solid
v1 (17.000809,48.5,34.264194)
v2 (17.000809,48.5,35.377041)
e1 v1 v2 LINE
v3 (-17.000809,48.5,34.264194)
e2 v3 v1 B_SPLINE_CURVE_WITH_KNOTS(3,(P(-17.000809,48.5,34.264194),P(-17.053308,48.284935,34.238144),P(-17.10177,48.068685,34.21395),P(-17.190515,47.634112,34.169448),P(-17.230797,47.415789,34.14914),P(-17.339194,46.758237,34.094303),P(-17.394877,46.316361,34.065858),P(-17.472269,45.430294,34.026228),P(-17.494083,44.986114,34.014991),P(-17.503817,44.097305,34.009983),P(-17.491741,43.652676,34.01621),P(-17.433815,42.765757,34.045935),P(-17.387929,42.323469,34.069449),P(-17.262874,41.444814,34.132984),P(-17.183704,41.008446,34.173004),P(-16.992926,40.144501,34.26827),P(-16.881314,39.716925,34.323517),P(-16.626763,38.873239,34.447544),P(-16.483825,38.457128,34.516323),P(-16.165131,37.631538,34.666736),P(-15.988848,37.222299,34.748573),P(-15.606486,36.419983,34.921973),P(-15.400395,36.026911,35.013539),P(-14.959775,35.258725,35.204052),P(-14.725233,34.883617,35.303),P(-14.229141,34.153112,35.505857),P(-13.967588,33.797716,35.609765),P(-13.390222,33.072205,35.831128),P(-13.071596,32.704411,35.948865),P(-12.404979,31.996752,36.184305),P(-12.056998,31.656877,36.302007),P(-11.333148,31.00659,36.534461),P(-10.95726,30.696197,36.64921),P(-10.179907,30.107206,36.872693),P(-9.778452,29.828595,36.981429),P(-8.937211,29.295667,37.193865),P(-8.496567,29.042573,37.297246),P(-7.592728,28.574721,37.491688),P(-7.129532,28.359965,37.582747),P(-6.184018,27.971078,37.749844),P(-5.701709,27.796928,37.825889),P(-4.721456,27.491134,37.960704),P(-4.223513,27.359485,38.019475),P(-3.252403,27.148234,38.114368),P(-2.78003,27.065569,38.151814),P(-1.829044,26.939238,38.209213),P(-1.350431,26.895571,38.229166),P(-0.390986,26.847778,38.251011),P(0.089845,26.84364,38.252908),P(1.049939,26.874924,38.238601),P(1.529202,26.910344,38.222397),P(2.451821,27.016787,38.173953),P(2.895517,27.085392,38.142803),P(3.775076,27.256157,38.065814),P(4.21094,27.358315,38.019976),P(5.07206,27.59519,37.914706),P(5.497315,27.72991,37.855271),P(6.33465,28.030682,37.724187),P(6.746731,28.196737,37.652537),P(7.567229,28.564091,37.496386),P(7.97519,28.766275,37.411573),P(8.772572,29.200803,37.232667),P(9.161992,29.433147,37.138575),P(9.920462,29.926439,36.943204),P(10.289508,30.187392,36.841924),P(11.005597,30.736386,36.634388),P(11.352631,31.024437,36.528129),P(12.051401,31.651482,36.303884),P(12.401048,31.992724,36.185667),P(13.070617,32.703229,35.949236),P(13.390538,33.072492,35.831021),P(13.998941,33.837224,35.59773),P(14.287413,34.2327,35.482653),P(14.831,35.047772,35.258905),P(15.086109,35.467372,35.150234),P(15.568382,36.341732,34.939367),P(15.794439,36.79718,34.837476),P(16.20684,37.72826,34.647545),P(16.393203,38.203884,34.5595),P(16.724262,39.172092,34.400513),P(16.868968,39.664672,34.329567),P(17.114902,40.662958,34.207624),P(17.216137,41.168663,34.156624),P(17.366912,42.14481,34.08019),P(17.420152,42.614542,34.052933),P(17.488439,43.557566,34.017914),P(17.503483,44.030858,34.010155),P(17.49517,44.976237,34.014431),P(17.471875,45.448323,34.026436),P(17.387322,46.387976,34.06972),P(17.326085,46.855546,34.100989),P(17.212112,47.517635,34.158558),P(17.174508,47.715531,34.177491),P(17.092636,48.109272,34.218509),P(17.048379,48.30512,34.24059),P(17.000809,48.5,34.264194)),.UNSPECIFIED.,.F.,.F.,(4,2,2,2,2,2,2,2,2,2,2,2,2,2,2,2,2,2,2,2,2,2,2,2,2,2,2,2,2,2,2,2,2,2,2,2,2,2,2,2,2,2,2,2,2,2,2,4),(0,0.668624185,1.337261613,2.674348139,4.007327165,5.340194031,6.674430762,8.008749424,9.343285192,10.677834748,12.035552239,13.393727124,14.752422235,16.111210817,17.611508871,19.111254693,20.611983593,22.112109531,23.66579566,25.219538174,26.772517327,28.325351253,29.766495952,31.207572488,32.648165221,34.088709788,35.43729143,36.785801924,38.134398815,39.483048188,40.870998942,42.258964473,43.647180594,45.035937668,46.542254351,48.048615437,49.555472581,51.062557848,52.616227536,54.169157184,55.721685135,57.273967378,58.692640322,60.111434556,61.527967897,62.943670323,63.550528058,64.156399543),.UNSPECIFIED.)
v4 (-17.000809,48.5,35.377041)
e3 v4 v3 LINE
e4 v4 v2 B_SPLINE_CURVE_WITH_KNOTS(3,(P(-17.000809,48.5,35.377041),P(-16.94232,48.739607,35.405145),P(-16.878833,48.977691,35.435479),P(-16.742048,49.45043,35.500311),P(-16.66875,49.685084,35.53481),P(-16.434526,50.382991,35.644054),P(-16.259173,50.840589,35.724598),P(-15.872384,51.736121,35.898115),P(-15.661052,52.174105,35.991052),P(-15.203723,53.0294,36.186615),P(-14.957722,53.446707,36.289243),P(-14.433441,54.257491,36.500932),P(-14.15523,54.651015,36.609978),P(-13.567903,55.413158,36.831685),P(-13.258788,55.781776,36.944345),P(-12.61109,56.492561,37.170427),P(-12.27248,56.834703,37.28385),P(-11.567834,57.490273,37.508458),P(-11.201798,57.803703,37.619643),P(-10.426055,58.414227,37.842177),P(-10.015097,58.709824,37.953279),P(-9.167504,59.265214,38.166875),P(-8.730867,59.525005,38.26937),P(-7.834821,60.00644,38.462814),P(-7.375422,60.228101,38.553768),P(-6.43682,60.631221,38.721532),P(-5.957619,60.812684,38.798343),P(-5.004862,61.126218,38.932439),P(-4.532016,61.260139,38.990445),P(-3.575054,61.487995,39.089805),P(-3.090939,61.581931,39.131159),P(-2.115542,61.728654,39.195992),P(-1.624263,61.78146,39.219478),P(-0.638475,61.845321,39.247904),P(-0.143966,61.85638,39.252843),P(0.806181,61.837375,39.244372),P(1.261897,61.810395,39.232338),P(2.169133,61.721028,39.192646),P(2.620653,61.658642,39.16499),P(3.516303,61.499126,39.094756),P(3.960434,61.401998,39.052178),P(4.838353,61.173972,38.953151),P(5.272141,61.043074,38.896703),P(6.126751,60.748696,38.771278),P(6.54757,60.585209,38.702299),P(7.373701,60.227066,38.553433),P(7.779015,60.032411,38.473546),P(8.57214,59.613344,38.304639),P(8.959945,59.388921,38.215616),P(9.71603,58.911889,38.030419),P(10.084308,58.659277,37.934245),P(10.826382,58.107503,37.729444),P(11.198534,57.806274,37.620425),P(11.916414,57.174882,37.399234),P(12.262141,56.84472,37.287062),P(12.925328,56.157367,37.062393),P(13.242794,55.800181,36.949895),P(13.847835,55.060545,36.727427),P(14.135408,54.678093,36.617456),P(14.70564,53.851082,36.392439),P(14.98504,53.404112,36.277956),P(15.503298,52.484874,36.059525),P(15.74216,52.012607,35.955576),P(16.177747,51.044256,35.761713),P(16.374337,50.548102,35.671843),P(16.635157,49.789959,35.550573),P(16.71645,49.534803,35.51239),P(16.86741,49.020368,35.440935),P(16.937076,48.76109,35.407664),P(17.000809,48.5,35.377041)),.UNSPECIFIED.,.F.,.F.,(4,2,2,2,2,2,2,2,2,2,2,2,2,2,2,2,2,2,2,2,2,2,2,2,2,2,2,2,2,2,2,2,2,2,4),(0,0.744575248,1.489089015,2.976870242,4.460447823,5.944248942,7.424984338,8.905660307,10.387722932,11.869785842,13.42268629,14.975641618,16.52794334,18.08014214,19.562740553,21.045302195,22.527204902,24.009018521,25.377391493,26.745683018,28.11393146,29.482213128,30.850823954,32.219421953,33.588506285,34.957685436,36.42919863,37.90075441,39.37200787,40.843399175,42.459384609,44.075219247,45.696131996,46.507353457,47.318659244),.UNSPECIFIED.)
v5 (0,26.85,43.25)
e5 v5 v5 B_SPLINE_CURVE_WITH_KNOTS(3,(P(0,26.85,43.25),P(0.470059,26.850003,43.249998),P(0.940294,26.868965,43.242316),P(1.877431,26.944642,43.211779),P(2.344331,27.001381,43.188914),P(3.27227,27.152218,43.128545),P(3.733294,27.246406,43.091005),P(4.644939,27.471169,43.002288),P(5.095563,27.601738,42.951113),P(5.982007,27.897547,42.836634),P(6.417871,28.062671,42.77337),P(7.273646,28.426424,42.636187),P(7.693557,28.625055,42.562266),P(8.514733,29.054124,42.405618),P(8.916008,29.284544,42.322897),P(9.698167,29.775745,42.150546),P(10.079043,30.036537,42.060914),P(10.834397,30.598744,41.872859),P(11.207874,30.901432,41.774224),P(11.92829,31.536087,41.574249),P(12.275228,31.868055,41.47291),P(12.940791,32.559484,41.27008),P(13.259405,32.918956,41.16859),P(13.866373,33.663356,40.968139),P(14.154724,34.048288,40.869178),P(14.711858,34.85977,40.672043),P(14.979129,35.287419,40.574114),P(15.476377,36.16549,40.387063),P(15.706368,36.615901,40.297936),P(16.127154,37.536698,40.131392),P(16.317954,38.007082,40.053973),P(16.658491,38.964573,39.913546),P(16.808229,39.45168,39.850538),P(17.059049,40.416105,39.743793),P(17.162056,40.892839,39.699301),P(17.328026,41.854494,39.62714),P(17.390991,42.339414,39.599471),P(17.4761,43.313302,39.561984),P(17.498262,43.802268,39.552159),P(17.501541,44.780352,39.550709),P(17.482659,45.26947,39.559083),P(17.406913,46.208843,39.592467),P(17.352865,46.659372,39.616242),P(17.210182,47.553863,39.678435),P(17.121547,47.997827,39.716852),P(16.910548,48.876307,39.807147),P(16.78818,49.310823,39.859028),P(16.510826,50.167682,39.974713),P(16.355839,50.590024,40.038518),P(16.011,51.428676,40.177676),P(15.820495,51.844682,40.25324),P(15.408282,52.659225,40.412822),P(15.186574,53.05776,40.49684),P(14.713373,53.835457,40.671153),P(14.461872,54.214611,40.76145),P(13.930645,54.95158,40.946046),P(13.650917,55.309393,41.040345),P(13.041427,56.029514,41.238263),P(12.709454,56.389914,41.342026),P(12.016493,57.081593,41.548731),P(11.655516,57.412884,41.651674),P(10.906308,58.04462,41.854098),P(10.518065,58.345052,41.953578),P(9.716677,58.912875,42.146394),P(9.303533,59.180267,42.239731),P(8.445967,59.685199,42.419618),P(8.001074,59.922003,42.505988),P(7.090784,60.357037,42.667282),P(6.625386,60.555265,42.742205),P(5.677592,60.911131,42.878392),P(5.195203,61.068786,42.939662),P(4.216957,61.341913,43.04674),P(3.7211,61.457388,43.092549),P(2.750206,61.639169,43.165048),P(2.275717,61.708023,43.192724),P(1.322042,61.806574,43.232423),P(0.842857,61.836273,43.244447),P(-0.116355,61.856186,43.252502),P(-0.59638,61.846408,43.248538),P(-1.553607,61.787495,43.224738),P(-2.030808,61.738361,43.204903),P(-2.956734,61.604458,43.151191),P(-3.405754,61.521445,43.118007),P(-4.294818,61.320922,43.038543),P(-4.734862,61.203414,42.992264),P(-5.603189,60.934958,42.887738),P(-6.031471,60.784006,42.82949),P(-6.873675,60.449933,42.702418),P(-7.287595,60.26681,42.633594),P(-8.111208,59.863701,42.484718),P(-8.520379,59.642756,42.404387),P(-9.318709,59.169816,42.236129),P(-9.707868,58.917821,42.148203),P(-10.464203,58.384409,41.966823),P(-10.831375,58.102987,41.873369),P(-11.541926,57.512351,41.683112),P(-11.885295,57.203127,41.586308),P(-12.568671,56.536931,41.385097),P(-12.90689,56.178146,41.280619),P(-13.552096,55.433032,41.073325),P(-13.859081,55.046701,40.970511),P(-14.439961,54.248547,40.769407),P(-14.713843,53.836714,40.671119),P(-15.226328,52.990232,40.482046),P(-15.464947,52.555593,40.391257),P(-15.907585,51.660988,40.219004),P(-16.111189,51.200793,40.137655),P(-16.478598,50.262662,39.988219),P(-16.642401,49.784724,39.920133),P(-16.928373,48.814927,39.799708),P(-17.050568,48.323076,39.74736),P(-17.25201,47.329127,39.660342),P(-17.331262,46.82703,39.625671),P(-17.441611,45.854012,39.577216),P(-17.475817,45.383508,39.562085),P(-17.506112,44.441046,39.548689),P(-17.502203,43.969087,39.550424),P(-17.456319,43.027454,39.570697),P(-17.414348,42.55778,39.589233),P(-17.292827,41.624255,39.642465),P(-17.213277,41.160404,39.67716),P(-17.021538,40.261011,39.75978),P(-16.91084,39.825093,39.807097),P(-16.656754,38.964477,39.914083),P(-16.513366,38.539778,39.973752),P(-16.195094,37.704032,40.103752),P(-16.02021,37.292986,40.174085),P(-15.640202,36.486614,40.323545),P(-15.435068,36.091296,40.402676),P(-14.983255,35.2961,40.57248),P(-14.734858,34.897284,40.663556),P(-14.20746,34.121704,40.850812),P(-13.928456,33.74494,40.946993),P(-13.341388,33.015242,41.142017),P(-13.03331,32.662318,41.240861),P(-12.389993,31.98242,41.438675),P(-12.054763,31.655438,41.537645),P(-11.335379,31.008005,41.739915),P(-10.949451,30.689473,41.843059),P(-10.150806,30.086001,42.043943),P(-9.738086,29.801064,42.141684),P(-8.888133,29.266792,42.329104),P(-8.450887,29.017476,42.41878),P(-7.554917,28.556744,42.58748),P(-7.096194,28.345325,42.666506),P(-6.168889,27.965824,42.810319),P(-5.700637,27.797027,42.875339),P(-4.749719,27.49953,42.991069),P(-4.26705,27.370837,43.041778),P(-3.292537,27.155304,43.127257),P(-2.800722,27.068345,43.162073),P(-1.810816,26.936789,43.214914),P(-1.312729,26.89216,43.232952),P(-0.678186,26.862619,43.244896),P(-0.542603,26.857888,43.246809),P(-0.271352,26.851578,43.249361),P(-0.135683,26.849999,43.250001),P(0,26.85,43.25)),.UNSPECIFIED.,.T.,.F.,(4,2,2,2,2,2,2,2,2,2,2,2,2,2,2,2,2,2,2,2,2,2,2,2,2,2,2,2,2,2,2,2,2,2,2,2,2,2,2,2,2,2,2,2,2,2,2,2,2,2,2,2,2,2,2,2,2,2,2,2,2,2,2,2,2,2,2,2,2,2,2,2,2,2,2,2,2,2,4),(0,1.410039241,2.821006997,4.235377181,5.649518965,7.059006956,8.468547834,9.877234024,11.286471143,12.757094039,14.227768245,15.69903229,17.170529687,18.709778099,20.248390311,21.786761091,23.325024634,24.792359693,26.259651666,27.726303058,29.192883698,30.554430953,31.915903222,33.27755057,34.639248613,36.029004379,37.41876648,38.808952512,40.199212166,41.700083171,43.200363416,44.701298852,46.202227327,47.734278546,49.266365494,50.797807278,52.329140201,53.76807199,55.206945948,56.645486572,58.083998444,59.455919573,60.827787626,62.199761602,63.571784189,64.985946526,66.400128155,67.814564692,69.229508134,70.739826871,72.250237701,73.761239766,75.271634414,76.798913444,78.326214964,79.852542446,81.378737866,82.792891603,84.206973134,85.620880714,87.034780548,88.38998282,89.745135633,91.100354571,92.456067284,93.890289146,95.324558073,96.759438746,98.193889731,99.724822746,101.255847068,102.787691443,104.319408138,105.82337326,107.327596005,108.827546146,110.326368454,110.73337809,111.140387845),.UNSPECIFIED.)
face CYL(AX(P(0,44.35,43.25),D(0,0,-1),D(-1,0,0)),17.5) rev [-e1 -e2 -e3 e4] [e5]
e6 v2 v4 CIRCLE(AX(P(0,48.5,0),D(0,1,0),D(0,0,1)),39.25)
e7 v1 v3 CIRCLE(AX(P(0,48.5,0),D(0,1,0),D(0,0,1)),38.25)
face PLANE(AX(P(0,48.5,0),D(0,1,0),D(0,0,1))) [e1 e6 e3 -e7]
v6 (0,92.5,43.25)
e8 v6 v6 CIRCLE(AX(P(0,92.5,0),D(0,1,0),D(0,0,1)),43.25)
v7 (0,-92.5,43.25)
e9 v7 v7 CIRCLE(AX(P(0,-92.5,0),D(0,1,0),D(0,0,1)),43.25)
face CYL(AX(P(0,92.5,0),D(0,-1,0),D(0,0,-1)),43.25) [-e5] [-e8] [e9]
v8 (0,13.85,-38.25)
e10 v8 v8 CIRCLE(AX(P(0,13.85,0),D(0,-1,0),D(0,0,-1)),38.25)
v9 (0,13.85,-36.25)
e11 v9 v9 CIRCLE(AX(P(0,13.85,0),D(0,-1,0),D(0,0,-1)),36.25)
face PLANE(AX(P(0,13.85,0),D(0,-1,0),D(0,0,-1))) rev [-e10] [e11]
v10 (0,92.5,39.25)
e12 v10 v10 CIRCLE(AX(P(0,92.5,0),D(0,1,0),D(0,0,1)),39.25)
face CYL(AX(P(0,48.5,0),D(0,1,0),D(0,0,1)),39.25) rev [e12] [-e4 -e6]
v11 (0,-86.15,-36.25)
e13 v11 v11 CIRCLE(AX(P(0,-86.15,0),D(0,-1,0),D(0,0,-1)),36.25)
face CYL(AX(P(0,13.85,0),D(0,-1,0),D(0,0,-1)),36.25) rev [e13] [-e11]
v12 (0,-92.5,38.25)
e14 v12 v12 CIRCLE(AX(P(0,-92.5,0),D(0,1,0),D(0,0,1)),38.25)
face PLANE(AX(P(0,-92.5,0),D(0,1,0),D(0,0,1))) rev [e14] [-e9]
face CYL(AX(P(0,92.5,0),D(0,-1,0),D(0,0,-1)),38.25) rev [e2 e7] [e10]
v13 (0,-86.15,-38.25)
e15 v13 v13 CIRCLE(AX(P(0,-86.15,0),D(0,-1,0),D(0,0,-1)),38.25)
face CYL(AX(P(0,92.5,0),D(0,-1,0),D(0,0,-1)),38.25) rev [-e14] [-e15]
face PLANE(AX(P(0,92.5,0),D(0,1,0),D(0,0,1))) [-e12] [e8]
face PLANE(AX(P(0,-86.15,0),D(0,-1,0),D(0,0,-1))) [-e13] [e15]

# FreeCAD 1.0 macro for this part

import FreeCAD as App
import Part
import Sketcher
Q = App.Units.Quantity

doc = App.newDocument("Part")
body = doc.addObject("PartDesign::Body", "Body")

sketch1 = doc.addObject("Sketcher::SketchObject", "Sketch")
body.addObject(sketch1)
sketch1.AttachmentSupport = (doc.XZ_Plane, [""])
sketch1.MapMode = "FlatFace"
sketch1.addGeometry(Part.Circle(App.Vector(0, 0, 0), App.Vector(0, 0, 1), 43.25), False)
sketch1.addGeometry(Part.Circle(App.Vector(0, 0, 0), App.Vector(0, 0, 1), 38.25), False)
sketch1.addConstraint(Sketcher.Constraint("Coincident", 0, 3, -1, 1))
sketch1.addConstraint(Sketcher.Constraint("Coincident", 1, 3, -1, 1))
sketch1.addConstraint(Sketcher.Constraint("Diameter", 0, Q("86.5 mm")))
sketch1.addConstraint(Sketcher.Constraint("Diameter", 1, Q("76.5 mm")))
pad1 = doc.addObject("PartDesign::Pad", "Pad")
body.addObject(pad1)
pad1.Profile = sketch1
pad1.Length = 185
pad1.Midplane = True

sketch2 = doc.addObject("Sketcher::SketchObject", "Sketch001")
body.addObject(sketch2)
sketch2.AttachmentSupport = (doc.XZ_Plane, [""])
sketch2.MapMode = "FlatFace"
sketch2.AttachmentOffset = App.Placement(App.Vector(0, 0, 86.15), App.Rotation())
sketch2.addGeometry(Part.Circle(App.Vector(0, 0, 0), App.Vector(0, 0, 1), 38.25), False)
sketch2.addGeometry(Part.Circle(App.Vector(0, 0, 0), App.Vector(0, 0, 1), 36.25), False)
sketch2.addConstraint(Sketcher.Constraint("Coincident", 0, 3, -1, 1))
sketch2.addConstraint(Sketcher.Constraint("Coincident", 1, 3, -1, 1))
sketch2.addConstraint(Sketcher.Constraint("Diameter", 0, Q("76.5 mm")))
sketch2.addConstraint(Sketcher.Constraint("Diameter", 1, Q("72.5 mm")))
pad2 = doc.addObject("PartDesign::Pad", "Pad001")
body.addObject(pad2)
pad2.Profile = sketch2
pad2.Length = 100
pad2.Reversed = True

sketch3 = doc.addObject("Sketcher::SketchObject", "Sketch002")
body.addObject(sketch3)
sketch3.AttachmentSupport = (doc.XZ_Plane, [""])
sketch3.MapMode = "FlatFace"
sketch3.AttachmentOffset = App.Placement(App.Vector(0, 0, -48.5), App.Rotation())
sketch3.addGeometry(Part.Circle(App.Vector(0, 0, 0), App.Vector(0, 0, 1), 39.25), False)
sketch3.addGeometry(Part.Circle(App.Vector(0, 0, 0), App.Vector(0, 0, 1), 38.25), False)
sketch3.addConstraint(Sketcher.Constraint("Coincident", 0, 3, -1, 1))
sketch3.addConstraint(Sketcher.Constraint("Coincident", 1, 3, -1, 1))
sketch3.addConstraint(Sketcher.Constraint("Diameter", 0, Q("78.5 mm")))
sketch3.addConstraint(Sketcher.Constraint("Diameter", 1, Q("76.5 mm")))
pocket1 = doc.addObject("PartDesign::Pocket", "Pocket")
body.addObject(pocket1)
pocket1.Profile = sketch3
pocket1.Length = 44

sketch4 = doc.addObject("Sketcher::SketchObject", "Sketch003")
body.addObject(sketch4)
sketch4.AttachmentSupport = (doc.XY_Plane, [""])
sketch4.MapMode = "FlatFace"
sketch4.addGeometry(Part.Circle(App.Vector(0, 44.35, 0), App.Vector(0, 0, 1), 17.5), False)
sketch4.addConstraint(Sketcher.Constraint("PointOnObject", 0, 3, -2))
sketch4.addConstraint(Sketcher.Constraint("Diameter", 0, Q("35 mm")))
sketch4.addConstraint(Sketcher.Constraint("DistanceY", -1, 1, 0, 3, Q("44.35 mm")))
pocket2 = doc.addObject("PartDesign::Pocket", "Pocket001")
body.addObject(pocket2)
pocket2.Profile = sketch4
pocket2.Type = "ThroughAll"
pocket2.Reversed = True

doc.recompute()
